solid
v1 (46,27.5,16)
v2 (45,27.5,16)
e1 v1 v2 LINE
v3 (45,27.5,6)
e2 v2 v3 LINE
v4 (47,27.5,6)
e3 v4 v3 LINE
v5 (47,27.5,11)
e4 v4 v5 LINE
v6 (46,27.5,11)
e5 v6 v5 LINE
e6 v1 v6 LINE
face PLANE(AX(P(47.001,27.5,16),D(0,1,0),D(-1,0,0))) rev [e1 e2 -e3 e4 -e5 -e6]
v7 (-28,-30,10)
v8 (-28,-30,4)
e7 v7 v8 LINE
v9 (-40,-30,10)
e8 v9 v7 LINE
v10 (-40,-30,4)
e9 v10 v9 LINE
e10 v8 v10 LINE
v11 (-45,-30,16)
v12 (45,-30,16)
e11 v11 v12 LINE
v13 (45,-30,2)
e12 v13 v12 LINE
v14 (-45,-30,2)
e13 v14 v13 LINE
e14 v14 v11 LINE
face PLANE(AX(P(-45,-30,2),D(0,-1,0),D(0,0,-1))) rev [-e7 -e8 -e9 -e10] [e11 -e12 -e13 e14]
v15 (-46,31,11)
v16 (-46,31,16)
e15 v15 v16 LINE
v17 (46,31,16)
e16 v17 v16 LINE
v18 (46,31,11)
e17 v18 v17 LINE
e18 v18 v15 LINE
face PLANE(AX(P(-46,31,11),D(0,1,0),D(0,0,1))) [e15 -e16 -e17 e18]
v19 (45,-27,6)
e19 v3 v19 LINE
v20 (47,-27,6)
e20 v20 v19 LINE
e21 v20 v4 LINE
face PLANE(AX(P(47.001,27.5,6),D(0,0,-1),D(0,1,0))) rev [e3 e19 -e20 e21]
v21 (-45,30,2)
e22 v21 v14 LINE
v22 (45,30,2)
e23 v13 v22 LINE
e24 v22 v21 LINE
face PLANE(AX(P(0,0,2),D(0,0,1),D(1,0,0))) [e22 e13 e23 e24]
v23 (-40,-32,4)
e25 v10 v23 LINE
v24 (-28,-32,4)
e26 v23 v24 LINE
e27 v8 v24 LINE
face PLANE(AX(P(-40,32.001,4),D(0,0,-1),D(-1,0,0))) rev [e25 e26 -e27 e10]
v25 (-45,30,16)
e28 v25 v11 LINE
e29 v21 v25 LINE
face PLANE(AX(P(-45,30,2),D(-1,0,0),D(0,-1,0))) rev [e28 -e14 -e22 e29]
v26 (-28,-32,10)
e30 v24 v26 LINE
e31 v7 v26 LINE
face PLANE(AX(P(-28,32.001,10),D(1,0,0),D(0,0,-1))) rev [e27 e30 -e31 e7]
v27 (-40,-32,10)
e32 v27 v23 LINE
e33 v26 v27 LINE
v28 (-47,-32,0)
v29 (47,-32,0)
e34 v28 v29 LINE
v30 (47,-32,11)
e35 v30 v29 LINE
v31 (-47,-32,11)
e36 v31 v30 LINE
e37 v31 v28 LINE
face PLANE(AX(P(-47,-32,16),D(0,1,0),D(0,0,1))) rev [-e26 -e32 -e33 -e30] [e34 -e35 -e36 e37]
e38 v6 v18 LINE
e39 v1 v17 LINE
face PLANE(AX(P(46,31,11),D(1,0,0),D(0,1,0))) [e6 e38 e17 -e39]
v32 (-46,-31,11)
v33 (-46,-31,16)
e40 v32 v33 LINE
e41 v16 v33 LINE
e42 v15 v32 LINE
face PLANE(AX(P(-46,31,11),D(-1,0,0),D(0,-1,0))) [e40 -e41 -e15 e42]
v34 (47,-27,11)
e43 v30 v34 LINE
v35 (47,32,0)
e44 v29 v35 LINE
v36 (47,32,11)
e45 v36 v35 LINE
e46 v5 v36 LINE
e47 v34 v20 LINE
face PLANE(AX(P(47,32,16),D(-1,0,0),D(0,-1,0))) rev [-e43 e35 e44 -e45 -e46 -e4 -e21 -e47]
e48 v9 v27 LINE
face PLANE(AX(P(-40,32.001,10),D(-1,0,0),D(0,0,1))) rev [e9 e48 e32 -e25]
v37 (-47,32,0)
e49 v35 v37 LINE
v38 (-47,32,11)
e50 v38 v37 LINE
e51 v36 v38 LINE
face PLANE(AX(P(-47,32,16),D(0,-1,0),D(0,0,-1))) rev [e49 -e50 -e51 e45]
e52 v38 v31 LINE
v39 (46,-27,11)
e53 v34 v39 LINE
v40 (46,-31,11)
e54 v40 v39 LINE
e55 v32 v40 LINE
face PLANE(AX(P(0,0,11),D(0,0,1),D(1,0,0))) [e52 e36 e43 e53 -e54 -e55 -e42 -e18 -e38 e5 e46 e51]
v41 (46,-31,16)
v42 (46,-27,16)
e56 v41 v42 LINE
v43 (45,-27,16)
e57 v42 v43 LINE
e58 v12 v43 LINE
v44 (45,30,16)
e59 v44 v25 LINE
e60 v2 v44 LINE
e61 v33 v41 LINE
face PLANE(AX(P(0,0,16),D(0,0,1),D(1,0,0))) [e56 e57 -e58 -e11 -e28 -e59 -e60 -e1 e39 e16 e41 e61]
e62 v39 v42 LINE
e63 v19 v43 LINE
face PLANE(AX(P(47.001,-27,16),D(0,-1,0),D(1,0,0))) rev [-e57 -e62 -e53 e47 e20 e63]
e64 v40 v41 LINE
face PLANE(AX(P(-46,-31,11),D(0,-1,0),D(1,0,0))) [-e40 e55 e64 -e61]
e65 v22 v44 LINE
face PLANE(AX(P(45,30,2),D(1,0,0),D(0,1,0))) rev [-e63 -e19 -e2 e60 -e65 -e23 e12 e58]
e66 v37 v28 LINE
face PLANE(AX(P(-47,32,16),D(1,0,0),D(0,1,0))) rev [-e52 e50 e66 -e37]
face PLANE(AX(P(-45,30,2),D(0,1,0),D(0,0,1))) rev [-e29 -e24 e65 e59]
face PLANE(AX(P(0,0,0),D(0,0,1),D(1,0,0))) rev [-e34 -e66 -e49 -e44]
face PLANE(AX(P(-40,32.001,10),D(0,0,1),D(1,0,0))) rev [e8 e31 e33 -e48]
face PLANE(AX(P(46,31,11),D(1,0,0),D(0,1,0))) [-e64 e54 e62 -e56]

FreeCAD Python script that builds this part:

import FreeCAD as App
import Part
import Sketcher
Q = App.Units.Quantity

doc = App.newDocument("Part")
params = doc.addObject("Spreadsheet::Sheet", "Params")
for row, (alias, value) in enumerate([
    ("sketch1_width", "94 mm"),
    ("sketch1_height", "64 mm"),
    ("pad1_length", "16 mm"),
    ("sketch2_width", "90 mm"),
    ("sketch2_height", "60 mm"),
    ("pocket1_length", "14 mm"),
    ("sketch3_width", "94 mm"),
    ("sketch3_width2", "92 mm"),
    ("sketch3_height", "64 mm"),
    ("sketch3_height2", "62 mm"),
    ("pocket2_length", "5 mm"),
    ("sketch4_width", "12 mm"),
    ("sketch4_height", "6 mm"),
    ("sketch5_height", "10 mm"),
    ("sketch5_width", "54.5 mm"),
    ("pocket4_length", "2 mm"),
], start=1):
    params.set(f"A{row}", alias)
    params.set(f"B{row}", "=" + value)
    params.setAlias(f"B{row}", alias)

body = doc.addObject("PartDesign::Body", "Body")

# Sketch on XY plane
sketch1 = body.newObject("Sketcher::SketchObject", "Sketch")
sketch1.AttachmentSupport = (doc.getObject("XY_Plane"), [""])
sketch1.MapMode = "FlatFace"
sketch1.addGeometry([
    Part.LineSegment(App.Vector(-47, 32, 0), App.Vector(-47, -32, 0)),
    Part.LineSegment(App.Vector(-47, -32, 0), App.Vector(47, -32, 0)),
    Part.LineSegment(App.Vector(47, -32, 0), App.Vector(47, 32, 0)),
    Part.LineSegment(App.Vector(47, 32, 0), App.Vector(-47, 32, 0)),
], False)
sketch1.addConstraint([
    Sketcher.Constraint("Coincident", 0, 2, 1, 1),
    Sketcher.Constraint("Coincident", 1, 2, 2, 1),
    Sketcher.Constraint("Coincident", 2, 2, 3, 1),
    Sketcher.Constraint("Coincident", 3, 2, 0, 1),
    Sketcher.Constraint("Vertical", 0),
    Sketcher.Constraint("Horizontal", 1),
    Sketcher.Constraint("Vertical", 2),
    Sketcher.Constraint("Horizontal", 3),
    Sketcher.Constraint("Symmetric", 0, 2, 2, 2, -1, 1),
    Sketcher.Constraint("DistanceX", 1, 1, 1, 2, Q("94 mm")),
    Sketcher.Constraint("DistanceY", 0, 2, 0, 1, Q("64 mm")),
])
sketch1.setExpression("Constraints[9]", "Params.sketch1_width")
sketch1.setExpression("Constraints[10]", "Params.sketch1_height")
pad1 = body.newObject("PartDesign::Pad", "Pad")
pad1.Profile = sketch1
pad1.setExpression("Length", "Params.pad1_length")

# Sketch on XY plane
sketch2 = body.newObject("Sketcher::SketchObject", "Sketch001")
sketch2.AttachmentSupport = (doc.getObject("XY_Plane"), [""])
sketch2.MapMode = "FlatFace"
sketch2.AttachmentOffset = App.Placement(App.Vector(0, 0, 16), App.Rotation())
sketch2.addGeometry([
    Part.LineSegment(App.Vector(-45, 30, 0), App.Vector(-45, -30, 0)),
    Part.LineSegment(App.Vector(-45, -30, 0), App.Vector(45, -30, 0)),
    Part.LineSegment(App.Vector(45, -30, 0), App.Vector(45, 30, 0)),
    Part.LineSegment(App.Vector(45, 30, 0), App.Vector(-45, 30, 0)),
], False)
sketch2.addConstraint([
    Sketcher.Constraint("Coincident", 0, 2, 1, 1),
    Sketcher.Constraint("Coincident", 1, 2, 2, 1),
    Sketcher.Constraint("Coincident", 2, 2, 3, 1),
    Sketcher.Constraint("Coincident", 3, 2, 0, 1),
    Sketcher.Constraint("Vertical", 0),
    Sketcher.Constraint("Horizontal", 1),
    Sketcher.Constraint("Vertical", 2),
    Sketcher.Constraint("Horizontal", 3),
    Sketcher.Constraint("Symmetric", 0, 2, 2, 2, -1, 1),
    Sketcher.Constraint("DistanceX", 1, 1, 1, 2, Q("90 mm")),
    Sketcher.Constraint("DistanceY", 0, 2, 0, 1, Q("60 mm")),
])
sketch2.setExpression("Constraints[9]", "Params.sketch2_width")
sketch2.setExpression("Constraints[10]", "Params.sketch2_height")
pocket1 = body.newObject("PartDesign::Pocket", "Pocket")
pocket1.Profile = sketch2
pocket1.setExpression("Length", "Params.pocket1_length")

# Sketch on XY plane
sketch3 = body.newObject("Sketcher::SketchObject", "Sketch002")
sketch3.AttachmentSupport = (doc.getObject("XY_Plane"), [""])
sketch3.MapMode = "FlatFace"
sketch3.AttachmentOffset = App.Placement(App.Vector(0, 0, 16), App.Rotation())
sketch3.addGeometry([
    Part.LineSegment(App.Vector(-47, 32, 0), App.Vector(-47, -32, 0)),  # 0
    Part.LineSegment(App.Vector(-47, -32, 0), App.Vector(47, -32, 0)),  # 1
    Part.LineSegment(App.Vector(47, -32, 0), App.Vector(47, 32, 0)),  # 2
    Part.LineSegment(App.Vector(47, 32, 0), App.Vector(-47, 32, 0)),  # 3
    Part.LineSegment(App.Vector(46, -31, 0), App.Vector(-46, -31, 0)),  # 4
    Part.LineSegment(App.Vector(-46, -31, 0), App.Vector(-46, 31, 0)),  # 5
    Part.LineSegment(App.Vector(-46, 31, 0), App.Vector(46, 31, 0)),  # 6
    Part.LineSegment(App.Vector(46, 31, 0), App.Vector(46, -31, 0)),  # 7
], False)
sketch3.addConstraint([
    Sketcher.Constraint("Coincident", 0, 2, 1, 1),
    Sketcher.Constraint("Coincident", 1, 2, 2, 1),
    Sketcher.Constraint("Coincident", 2, 2, 3, 1),
    Sketcher.Constraint("Coincident", 3, 2, 0, 1),
    Sketcher.Constraint("Coincident", 4, 2, 5, 1),
    Sketcher.Constraint("Coincident", 5, 2, 6, 1),
    Sketcher.Constraint("Coincident", 6, 2, 7, 1),
    Sketcher.Constraint("Coincident", 7, 2, 4, 1),
    Sketcher.Constraint("Vertical", 0),
    Sketcher.Constraint("Horizontal", 1),
    Sketcher.Constraint("Vertical", 2),
    Sketcher.Constraint("Horizontal", 3),
    Sketcher.Constraint("Horizontal", 4),
    Sketcher.Constraint("Vertical", 5),
    Sketcher.Constraint("Horizontal", 6),
    Sketcher.Constraint("Vertical", 7),
    Sketcher.Constraint("Symmetric", 0, 2, 2, 2, -1, 1),
    Sketcher.Constraint("Symmetric", 4, 2, 6, 2, -1, 1),
    Sketcher.Constraint("DistanceX", 1, 1, 1, 2, Q("94 mm")),
    Sketcher.Constraint("DistanceX", 4, 2, 4, 1, Q("92 mm")),
    Sketcher.Constraint("DistanceY", 0, 2, 0, 1, Q("64 mm")),
    Sketcher.Constraint("DistanceY", 5, 1, 5, 2, Q("62 mm")),
])
sketch3.setExpression("Constraints[18]", "Params.sketch3_width")
sketch3.setExpression("Constraints[19]", "Params.sketch3_width2")
sketch3.setExpression("Constraints[20]", "Params.sketch3_height")
sketch3.setExpression("Constraints[21]", "Params.sketch3_height2")
pocket2 = body.newObject("PartDesign::Pocket", "Pocket001")
pocket2.Profile = sketch3
pocket2.setExpression("Length", "Params.pocket2_length")

# Sketch on XZ plane
sketch4 = body.newObject("Sketcher::SketchObject", "Sketch003")
sketch4.AttachmentSupport = (doc.getObject("XZ_Plane"), [""])
sketch4.MapMode = "FlatFace"
sketch4.AttachmentOffset = App.Placement(App.Vector(0, 0, 32), App.Rotation())
sketch4.addGeometry([
    Part.LineSegment(App.Vector(-40, 10, 0), App.Vector(-40, 4, 0)),
    Part.LineSegment(App.Vector(-40, 4, 0), App.Vector(-28, 4, 0)),
    Part.LineSegment(App.Vector(-28, 4, 0), App.Vector(-28, 10, 0)),
    Part.LineSegment(App.Vector(-28, 10, 0), App.Vector(-40, 10, 0)),
], False)
sketch4.addConstraint([
    Sketcher.Constraint("Coincident", 0, 2, 1, 1),
    Sketcher.Constraint("Coincident", 1, 2, 2, 1),
    Sketcher.Constraint("Coincident", 2, 2, 3, 1),
    Sketcher.Constraint("Coincident", 3, 2, 0, 1),
    Sketcher.Constraint("Vertical", 0),
    Sketcher.Constraint("Horizontal", 1),
    Sketcher.Constraint("Vertical", 2),
    Sketcher.Constraint("Horizontal", 3),
    Sketcher.Constraint("DistanceX", 1, 1, 1, 2, Q("12 mm")),
    Sketcher.Constraint("DistanceY", 0, 2, 0, 1, Q("6 mm")),
    Sketcher.Constraint("DistanceX", 0, 2, -1, 1, Q("40 mm")),
    Sketcher.Constraint("DistanceY", -1, 1, 0, 2, Q("4 mm")),
])
sketch4.setExpression("Constraints[8]", "Params.sketch4_width")
sketch4.setExpression("Constraints[9]", "Params.sketch4_height")
pocket3 = body.newObject("PartDesign::Pocket", "Pocket002")
pocket3.Profile = sketch4
pocket3.Type = "UpToFirst"

# Sketch on YZ plane
sketch5 = body.newObject("Sketcher::SketchObject", "Sketch004")
sketch5.AttachmentSupport = (doc.getObject("YZ_Plane"), [""])
sketch5.MapMode = "FlatFace"
sketch5.AttachmentOffset = App.Placement(App.Vector(0, 0, 45), App.Rotation())
sketch5.addGeometry([
    Part.LineSegment(App.Vector(28, 6, 0), App.Vector(-27, 6, 0)),
    Part.LineSegment(App.Vector(-27, 6, 0), App.Vector(-27, 16, 0)),
    Part.LineSegment(App.Vector(-27, 16, 0), App.Vector(28, 16, 0)),
    Part.LineSegment(App.Vector(28, 16, 0), App.Vector(28, 6, 0)),
], False)
sketch5.addConstraint([
    Sketcher.Constraint("Coincident", 0, 2, 1, 1),
    Sketcher.Constraint("Coincident", 1, 2, 2, 1),
    Sketcher.Constraint("Coincident", 2, 2, 3, 1),
    Sketcher.Constraint("Coincident", 3, 2, 0, 1),
    Sketcher.Constraint("Horizontal", 0),
    Sketcher.Constraint("Vertical", 1),
    Sketcher.Constraint("Horizontal", 2),
    Sketcher.Constraint("Vertical", 3),
    Sketcher.Constraint("DistanceY", 1, 1, 1, 2, Q("10 mm")),
    Sketcher.Constraint("DistanceX", 0, 2, 0, 1, Q("54.5 mm")),
    Sketcher.Constraint("DistanceX", 0, 2, -1, 1, Q("27 mm")),
    Sketcher.Constraint("DistanceY", -1, 1, 0, 2, Q("6 mm")),
])
sketch5.setExpression("Constraints[8]", "Params.sketch5_height")
sketch5.setExpression("Constraints[9]", "Params.sketch5_width")
pocket4 = body.newObject("PartDesign::Pocket", "Pocket003")
pocket4.Profile = sketch5
pocket4.setExpression("Length", "Params.pocket4_length")
pocket4.Reversed = True

doc.recompute()
